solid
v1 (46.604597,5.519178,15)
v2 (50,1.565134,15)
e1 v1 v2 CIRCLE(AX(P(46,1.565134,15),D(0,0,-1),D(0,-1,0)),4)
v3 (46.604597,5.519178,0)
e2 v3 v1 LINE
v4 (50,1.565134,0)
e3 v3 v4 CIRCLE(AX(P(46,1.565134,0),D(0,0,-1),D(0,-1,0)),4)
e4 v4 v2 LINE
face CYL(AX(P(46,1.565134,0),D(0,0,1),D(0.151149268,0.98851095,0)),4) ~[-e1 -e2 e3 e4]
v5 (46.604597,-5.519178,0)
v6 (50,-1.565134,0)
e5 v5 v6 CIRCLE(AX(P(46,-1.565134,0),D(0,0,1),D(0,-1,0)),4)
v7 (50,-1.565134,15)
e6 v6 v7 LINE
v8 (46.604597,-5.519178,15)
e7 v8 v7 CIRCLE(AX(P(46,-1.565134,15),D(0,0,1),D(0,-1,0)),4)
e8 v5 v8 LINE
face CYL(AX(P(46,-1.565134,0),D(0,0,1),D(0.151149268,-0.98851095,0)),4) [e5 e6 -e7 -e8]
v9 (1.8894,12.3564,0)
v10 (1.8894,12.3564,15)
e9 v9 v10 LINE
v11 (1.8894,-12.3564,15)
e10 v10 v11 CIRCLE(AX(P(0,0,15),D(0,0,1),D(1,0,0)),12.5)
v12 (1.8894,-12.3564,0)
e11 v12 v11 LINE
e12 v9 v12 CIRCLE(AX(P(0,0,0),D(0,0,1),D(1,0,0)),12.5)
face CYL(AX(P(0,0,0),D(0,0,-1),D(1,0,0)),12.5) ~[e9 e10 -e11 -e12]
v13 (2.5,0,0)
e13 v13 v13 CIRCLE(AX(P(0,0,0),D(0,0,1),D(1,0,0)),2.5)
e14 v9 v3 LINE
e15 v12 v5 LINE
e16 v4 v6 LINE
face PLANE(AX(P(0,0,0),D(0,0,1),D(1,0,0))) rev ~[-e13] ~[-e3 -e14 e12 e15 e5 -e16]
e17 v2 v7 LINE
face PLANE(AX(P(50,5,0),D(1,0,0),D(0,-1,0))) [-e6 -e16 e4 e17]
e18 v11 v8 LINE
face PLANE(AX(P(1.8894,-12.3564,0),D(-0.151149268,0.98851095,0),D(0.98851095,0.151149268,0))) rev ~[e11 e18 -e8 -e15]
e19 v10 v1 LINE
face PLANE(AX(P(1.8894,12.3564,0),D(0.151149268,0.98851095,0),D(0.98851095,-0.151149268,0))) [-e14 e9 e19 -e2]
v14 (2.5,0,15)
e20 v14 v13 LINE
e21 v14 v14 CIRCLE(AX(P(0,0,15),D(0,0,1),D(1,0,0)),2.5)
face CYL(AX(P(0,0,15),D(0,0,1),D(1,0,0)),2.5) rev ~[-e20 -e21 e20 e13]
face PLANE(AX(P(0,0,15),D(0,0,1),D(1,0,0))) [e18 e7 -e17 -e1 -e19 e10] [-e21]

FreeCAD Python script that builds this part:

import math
import FreeCAD as App
import Part
import Sketcher

V = App.Vector
Q = App.Units.Quantity


def edges_at(feature, points):
    """Names of the edges that pass closest to the given points."""
    edges = feature.Shape.Edges
    near = lambda p: min(range(len(edges)), key=lambda i: edges[i].distToShape(Part.Vertex(*p))[0])
    return sorted({f"Edge{near(p) + 1}" for p in points})

doc = App.newDocument("Part")
body = doc.addObject("PartDesign::Body", "Body")

# Sketch on XY plane
sketch1 = body.newObject("Sketcher::SketchObject", "Sketch")
sketch1.AttachmentSupport = (doc.getObject("XY_Plane"), [""])
sketch1.MapMode = "FlatFace"
sketch1.addGeometry([
    Part.ArcOfCircle(Part.Circle(V(0, 0, 0), V(0, 0, 1), 12.5), math.radians(81.30632), math.radians(278.69368)),
    Part.LineSegment(V(1.8894, -12.3564, 0), V(50, -5, 0)),
    Part.LineSegment(V(50, -5, 0), V(50, 5, 0)),
    Part.LineSegment(V(50, 5, 0), V(1.8894, 12.3564, 0)),
], False)
sketch1.addConstraint([
    Sketcher.Constraint("Tangent", 0, 2, 1, 1),
    Sketcher.Constraint("Coincident", 1, 2, 2, 1),
    Sketcher.Constraint("Coincident", 2, 2, 3, 1),
    Sketcher.Constraint("Tangent", 3, 2, 0, 1),
    Sketcher.Constraint("Vertical", 2),
    Sketcher.Constraint("Coincident", 0, 3, -1, 1),
    Sketcher.Constraint("Vertical", 0, 2, 3, 2),
    Sketcher.Constraint("Radius", 0, Q("12.5 mm")),
    Sketcher.Constraint("DistanceX", -1, 1, 1, 2, Q("50 mm")),
    Sketcher.Constraint("DistanceY", 1, 2, -1, 1, Q("5 mm")),
])
pad1 = body.newObject("PartDesign::Pad", "Pad")
pad1.Profile = sketch1
pad1.Length = 15
doc.recompute()

fillet = body.newObject("PartDesign::Fillet", "Fillet")
fillet.Base = (pad1, edges_at(pad1, [(50, 5, 7.5), (50, -5, 7.5)]))
fillet.Radius = 4

# Sketch on XY plane
sketch2 = body.newObject("Sketcher::SketchObject", "Sketch001")
sketch2.AttachmentSupport = (doc.getObject("XY_Plane"), [""])
sketch2.MapMode = "FlatFace"
sketch2.AttachmentOffset = App.Placement(V(0, 0, 15), App.Rotation())
sketch2.addGeometry(Part.Circle(V(0, 0, 0), V(0, 0, 1), 2.5), False)
sketch2.addConstraint([
    Sketcher.Constraint("Coincident", 0, 3, -1, 1),
    Sketcher.Constraint("Diameter", 0, Q("5 mm")),
])
pocket1 = body.newObject("PartDesign::Pocket", "Pocket")
pocket1.Profile = sketch2
pocket1.Type = "ThroughAll"

doc.recompute()
